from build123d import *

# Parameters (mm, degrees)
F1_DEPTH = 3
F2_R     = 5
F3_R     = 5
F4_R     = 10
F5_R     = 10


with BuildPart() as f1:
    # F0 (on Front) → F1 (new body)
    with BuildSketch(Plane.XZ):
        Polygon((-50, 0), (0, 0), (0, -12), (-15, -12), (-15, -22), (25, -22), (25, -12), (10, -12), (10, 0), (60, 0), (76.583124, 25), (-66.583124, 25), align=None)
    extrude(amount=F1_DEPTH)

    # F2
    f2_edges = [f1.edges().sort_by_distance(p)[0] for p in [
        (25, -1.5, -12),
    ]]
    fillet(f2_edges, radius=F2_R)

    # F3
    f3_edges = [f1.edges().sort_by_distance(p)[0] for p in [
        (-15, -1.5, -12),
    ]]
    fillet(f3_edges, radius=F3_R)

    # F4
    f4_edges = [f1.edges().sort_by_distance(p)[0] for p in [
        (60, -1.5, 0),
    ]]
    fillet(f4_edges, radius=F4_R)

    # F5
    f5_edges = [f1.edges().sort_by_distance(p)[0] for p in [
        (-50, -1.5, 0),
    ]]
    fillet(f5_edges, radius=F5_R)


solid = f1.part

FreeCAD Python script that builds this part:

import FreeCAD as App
import Part
import Sketcher
Q = App.Units.Quantity


def edges_at(feature, points):
    """Names of the edges that pass closest to the given points."""
    edges = feature.Shape.Edges
    near = lambda p: min(range(len(edges)), key=lambda i: edges[i].distToShape(Part.Vertex(*p))[0])
    return sorted({f"Edge{near(p) + 1}" for p in points})


def add_polygon(sketch, points):
    """Adds a closed chain of lines whose ends are joined by coincident constraints."""
    first, n = sketch.GeometryCount, len(points)
    for a, b in zip(points, points[1:] + points[:1]):
        sketch.addGeometry(Part.LineSegment(App.Vector(*a, 0), App.Vector(*b, 0)), False)
    for i in range(n):
        sketch.addConstraint(Sketcher.Constraint("Coincident", first + i, 2, first + (i + 1) % n, 1))

doc = App.newDocument("Part")
body = doc.addObject("PartDesign::Body", "Body")

# Sketch on XZ plane
sketch1 = body.newObject("Sketcher::SketchObject", "Sketch")
sketch1.AttachmentSupport = (doc.getObject("XZ_Plane"), [""])
sketch1.MapMode = "FlatFace"
add_polygon(sketch1, [(-50, 0), (0, 0), (0, -12), (-15, -12), (-15, -22), (25, -22), (25, -12), (10, -12), (10, 0), (60, 0), (76.583124, 25), (-66.583124, 25)])  # lines 0-11
sketch1.addConstraint(Sketcher.Constraint("Horizontal", 0))
sketch1.addConstraint(Sketcher.Constraint("Vertical", 1))
sketch1.addConstraint(Sketcher.Constraint("Horizontal", 2))
sketch1.addConstraint(Sketcher.Constraint("Vertical", 3))
sketch1.addConstraint(Sketcher.Constraint("Horizontal", 4))
sketch1.addConstraint(Sketcher.Constraint("Vertical", 5))
sketch1.addConstraint(Sketcher.Constraint("Horizontal", 6))
sketch1.addConstraint(Sketcher.Constraint("Vertical", 7))
sketch1.addConstraint(Sketcher.Constraint("Horizontal", 8))
sketch1.addConstraint(Sketcher.Constraint("Horizontal", 10))
sketch1.addConstraint(Sketcher.Constraint("Coincident", 0, 2, -1, 1))
sketch1.addConstraint(Sketcher.Constraint("PointOnObject", 7, 2, -1))
sketch1.addConstraint(Sketcher.Constraint("Horizontal", 2, 2, 5, 2))
sketch1.addConstraint(Sketcher.Constraint("Equal", 2, 6))
sketch1.addConstraint(Sketcher.Constraint("Equal", 0, 8))
sketch1.addConstraint(Sketcher.Constraint("Equal", 9, 11))
sketch1.addConstraint(Sketcher.Constraint("DistanceX", 0, 1, 0, 2, Q("50 mm")))
sketch1.addConstraint(Sketcher.Constraint("DistanceX", 2, 2, 2, 1, Q("15 mm")))
sketch1.addConstraint(Sketcher.Constraint("DistanceX", 4, 1, 4, 2, Q("40 mm")))
sketch1.addConstraint(Sketcher.Constraint("DistanceY", 1, 2, 1, 1, Q("12 mm")))
sketch1.addConstraint(Sketcher.Constraint("DistanceY", 3, 2, 3, 1, Q("10 mm")))
sketch1.addConstraint(Sketcher.Constraint("Distance", 9, Q("30 mm")))
sketch1.addConstraint(Sketcher.Constraint("DistanceY", -1, 1, 9, 2, Q("25 mm")))
pad1 = body.newObject("PartDesign::Pad", "Pad")
pad1.Profile = sketch1
pad1.Length = 3
doc.recompute()

fillet = body.newObject("PartDesign::Fillet", "Fillet")
fillet.Base = (pad1, edges_at(pad1, [(25, -1.5, -12)]))
fillet.Radius = 5
doc.recompute()

fillet2 = body.newObject("PartDesign::Fillet", "Fillet001")
fillet2.Base = (fillet, edges_at(fillet, [(-15, -1.5, -12)]))
fillet2.Radius = 5
doc.recompute()

fillet3 = body.newObject("PartDesign::Fillet", "Fillet002")
fillet3.Base = (fillet2, edges_at(fillet2, [(60, -1.5, 0)]))
fillet3.Radius = 10
doc.recompute()

fillet4 = body.newObject("PartDesign::Fillet", "Fillet003")
fillet4.Base = (fillet3, edges_at(fillet3, [(-50, -1.5, 0)]))
fillet4.Radius = 10

doc.recompute()
